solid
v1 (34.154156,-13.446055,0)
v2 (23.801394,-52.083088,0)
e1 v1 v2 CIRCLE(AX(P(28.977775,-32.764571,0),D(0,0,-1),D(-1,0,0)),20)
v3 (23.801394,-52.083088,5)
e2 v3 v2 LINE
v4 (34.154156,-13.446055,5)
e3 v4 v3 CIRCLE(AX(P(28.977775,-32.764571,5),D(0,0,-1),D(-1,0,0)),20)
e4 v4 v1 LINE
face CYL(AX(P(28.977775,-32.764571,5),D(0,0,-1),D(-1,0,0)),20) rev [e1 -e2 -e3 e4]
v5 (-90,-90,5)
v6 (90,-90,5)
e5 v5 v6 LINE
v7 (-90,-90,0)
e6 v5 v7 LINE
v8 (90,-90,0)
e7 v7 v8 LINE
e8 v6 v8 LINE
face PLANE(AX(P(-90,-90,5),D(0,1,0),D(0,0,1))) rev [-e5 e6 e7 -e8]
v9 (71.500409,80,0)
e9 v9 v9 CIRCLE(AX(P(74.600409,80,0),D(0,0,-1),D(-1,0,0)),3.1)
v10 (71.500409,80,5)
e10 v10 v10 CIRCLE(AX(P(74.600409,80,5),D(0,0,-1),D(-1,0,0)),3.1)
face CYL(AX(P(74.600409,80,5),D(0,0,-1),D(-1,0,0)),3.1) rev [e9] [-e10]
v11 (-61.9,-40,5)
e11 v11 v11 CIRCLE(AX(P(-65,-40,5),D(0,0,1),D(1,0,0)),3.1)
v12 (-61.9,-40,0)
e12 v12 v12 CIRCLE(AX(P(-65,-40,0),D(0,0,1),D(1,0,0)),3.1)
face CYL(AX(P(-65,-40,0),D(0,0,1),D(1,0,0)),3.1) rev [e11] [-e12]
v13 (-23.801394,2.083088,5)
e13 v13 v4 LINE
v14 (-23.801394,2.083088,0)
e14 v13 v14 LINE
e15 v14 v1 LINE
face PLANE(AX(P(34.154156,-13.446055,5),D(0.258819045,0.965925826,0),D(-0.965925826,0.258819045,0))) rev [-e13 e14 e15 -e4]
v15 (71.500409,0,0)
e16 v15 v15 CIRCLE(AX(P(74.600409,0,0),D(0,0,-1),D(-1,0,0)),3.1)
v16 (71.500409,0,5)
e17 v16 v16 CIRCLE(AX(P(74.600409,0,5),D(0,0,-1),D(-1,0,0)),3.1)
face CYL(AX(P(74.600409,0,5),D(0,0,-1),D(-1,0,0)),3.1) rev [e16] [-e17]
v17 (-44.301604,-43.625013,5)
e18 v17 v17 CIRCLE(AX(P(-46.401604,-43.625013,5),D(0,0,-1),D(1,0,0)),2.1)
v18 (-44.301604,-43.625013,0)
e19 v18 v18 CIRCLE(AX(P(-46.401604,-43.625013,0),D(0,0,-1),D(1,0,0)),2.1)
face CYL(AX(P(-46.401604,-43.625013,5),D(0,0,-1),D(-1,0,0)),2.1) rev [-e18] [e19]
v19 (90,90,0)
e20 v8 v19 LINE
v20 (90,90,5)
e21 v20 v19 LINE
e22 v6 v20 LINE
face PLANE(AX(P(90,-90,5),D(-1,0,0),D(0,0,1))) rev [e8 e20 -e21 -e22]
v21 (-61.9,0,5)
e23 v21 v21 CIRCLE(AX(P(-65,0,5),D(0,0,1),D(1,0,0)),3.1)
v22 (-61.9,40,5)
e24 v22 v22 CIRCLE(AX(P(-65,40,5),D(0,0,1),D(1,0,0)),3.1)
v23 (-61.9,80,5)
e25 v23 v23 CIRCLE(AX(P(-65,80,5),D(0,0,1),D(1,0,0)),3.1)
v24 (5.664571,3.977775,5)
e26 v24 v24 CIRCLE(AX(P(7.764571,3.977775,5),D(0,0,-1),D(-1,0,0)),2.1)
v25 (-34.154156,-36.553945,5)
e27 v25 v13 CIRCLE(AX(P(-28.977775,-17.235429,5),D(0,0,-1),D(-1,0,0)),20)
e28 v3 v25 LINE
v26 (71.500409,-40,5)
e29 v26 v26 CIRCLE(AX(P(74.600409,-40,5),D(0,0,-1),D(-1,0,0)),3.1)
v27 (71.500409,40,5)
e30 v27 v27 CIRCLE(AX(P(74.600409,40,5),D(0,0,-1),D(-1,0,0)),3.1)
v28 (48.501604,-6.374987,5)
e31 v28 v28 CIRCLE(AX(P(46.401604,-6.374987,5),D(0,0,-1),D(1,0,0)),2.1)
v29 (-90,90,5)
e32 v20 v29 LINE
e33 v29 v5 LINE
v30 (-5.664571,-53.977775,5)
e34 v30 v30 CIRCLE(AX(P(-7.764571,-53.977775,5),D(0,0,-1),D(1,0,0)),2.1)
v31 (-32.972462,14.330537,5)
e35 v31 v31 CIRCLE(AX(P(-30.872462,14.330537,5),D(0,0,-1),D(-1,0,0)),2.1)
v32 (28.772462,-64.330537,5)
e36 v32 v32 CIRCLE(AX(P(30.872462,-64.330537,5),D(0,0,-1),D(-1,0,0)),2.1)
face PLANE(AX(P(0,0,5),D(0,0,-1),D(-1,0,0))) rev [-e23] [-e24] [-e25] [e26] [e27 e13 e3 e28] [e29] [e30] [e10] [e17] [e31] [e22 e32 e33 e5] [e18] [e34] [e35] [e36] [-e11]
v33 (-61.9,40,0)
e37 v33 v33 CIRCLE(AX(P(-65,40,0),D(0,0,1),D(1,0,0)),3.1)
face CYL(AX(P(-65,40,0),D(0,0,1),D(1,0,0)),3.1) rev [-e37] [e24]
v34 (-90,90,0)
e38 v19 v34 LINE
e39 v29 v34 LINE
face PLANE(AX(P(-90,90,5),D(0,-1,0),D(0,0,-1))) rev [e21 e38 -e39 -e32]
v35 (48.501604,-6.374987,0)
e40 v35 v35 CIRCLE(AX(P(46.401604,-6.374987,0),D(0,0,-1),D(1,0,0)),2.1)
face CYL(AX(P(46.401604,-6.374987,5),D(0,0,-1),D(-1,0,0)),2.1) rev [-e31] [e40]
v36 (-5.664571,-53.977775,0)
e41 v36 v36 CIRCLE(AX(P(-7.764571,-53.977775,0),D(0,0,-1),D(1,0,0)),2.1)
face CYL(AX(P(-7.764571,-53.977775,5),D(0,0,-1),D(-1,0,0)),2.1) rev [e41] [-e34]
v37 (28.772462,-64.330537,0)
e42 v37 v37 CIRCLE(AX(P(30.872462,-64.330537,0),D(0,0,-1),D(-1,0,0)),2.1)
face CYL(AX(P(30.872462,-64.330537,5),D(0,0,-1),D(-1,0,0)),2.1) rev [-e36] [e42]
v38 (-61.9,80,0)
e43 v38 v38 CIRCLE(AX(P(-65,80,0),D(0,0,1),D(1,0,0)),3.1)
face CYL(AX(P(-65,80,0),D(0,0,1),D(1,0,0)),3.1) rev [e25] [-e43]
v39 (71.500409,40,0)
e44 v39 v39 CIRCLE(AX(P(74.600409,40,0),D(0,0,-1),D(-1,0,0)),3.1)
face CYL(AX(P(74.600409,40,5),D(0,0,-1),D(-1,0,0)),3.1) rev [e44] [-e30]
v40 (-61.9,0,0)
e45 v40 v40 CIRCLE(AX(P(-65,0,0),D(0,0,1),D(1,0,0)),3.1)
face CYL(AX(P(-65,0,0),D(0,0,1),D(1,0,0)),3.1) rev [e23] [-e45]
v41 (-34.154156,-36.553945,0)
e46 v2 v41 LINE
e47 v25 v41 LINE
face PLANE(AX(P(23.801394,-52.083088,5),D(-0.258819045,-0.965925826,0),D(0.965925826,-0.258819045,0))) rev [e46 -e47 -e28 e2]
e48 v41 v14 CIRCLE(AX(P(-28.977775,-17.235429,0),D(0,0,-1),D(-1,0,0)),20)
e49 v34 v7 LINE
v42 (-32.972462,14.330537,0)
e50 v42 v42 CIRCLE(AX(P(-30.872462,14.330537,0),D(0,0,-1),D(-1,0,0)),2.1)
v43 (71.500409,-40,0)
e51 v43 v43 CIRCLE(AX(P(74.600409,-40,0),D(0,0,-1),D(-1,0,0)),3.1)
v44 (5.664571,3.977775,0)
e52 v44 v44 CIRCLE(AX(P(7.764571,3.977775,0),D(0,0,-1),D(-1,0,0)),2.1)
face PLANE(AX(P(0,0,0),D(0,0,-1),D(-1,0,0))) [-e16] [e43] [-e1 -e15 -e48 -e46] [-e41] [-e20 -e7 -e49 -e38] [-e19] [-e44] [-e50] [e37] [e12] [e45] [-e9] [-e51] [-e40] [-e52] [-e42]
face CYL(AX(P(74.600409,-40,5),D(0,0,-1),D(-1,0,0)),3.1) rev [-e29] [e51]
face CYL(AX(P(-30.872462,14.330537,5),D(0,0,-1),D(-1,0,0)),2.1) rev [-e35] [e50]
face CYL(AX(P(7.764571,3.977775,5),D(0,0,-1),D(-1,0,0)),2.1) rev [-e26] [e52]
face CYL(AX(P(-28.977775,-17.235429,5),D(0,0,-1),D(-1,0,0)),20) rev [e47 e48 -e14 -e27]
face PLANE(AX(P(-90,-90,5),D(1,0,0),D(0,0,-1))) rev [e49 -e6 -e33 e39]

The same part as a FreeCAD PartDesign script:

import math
import FreeCAD as App
import Part
import Sketcher

V = App.Vector
Q = App.Units.Quantity

doc = App.newDocument("Part")
body = doc.addObject("PartDesign::Body", "Body")

sketch1 = body.newObject("Sketcher::SketchObject", "Sketch")
sketch1.AttachmentSupport = (doc.getObject("XY_Plane"), [""])
sketch1.MapMode = "FlatFace"
sketch1.addGeometry(Part.LineSegment(V(-90, 90, 0), V(-90, -90, 0)), False)
sketch1.addGeometry(Part.LineSegment(V(-90, -90, 0), V(90, -90, 0)), False)
sketch1.addGeometry(Part.LineSegment(V(90, -90, 0), V(90, 90, 0)), False)
sketch1.addGeometry(Part.LineSegment(V(90, 90, 0), V(-90, 90, 0)), False)
sketch1.addConstraint(Sketcher.Constraint("Coincident", 0, 2, 1, 1))
sketch1.addConstraint(Sketcher.Constraint("Coincident", 1, 2, 2, 1))
sketch1.addConstraint(Sketcher.Constraint("Coincident", 2, 2, 3, 1))
sketch1.addConstraint(Sketcher.Constraint("Coincident", 3, 2, 0, 1))
sketch1.addConstraint(Sketcher.Constraint("Vertical", 0))
sketch1.addConstraint(Sketcher.Constraint("Horizontal", 1))
sketch1.addConstraint(Sketcher.Constraint("Vertical", 2))
sketch1.addConstraint(Sketcher.Constraint("Horizontal", 3))
sketch1.addConstraint(Sketcher.Constraint("Symmetric", 0, 2, 2, 2, -1, 1))
sketch1.addConstraint(Sketcher.Constraint("Equal", 3, 0))
sketch1.addConstraint(Sketcher.Constraint("DistanceX", 1, 1, 1, 2, 180.0))
pad1 = body.newObject("PartDesign::Pad", "Pad")
pad1.Profile = sketch1
pad1.Length = 5

sketch2 = body.newObject("Sketcher::SketchObject", "Sketch001")
sketch2.AttachmentSupport = (doc.getObject("XY_Plane"), [""])
sketch2.MapMode = "FlatFace"
sketch2.addGeometry(Part.LineSegment(V(-23.801394, 2.083088, 0), V(34.154156, -13.446055, 0)), False)
sketch2.addGeometry(Part.ArcOfCircle(Part.Circle(V(28.977775, -32.764571, 0), V(0, 0, 1), 20), math.radians(-105), math.radians(75)), False)
sketch2.addGeometry(Part.LineSegment(V(23.801394, -52.083088, 0), V(-34.154156, -36.553945, 0)), False)
sketch2.addGeometry(Part.ArcOfCircle(Part.Circle(V(-28.977775, -17.235429, 0), V(0, 0, 1), 20), math.radians(75), math.radians(255)), False)
sketch2.addConstraint(Sketcher.Constraint("Tangent", 0, 2, 1, 2))
sketch2.addConstraint(Sketcher.Constraint("Tangent", 1, 1, 2, 1))
sketch2.addConstraint(Sketcher.Constraint("Tangent", 2, 2, 3, 2))
sketch2.addConstraint(Sketcher.Constraint("Tangent", 3, 1, 0, 1))
sketch2.addConstraint(Sketcher.Constraint("Equal", 1, 3))
sketch2.addConstraint(Sketcher.Constraint("Radius", 1, 20.0))
sketch2.addConstraint(Sketcher.Constraint("Angle", 0, Q("-15 deg")))
sketch2.addConstraint(Sketcher.Constraint("Distance", 0, 60.0))
sketch2.addConstraint(Sketcher.Constraint("DistanceY", 1, 3, -1, 1, 32.764571))
sketch2.addConstraint(Sketcher.Constraint("DistanceX", -1, 1, 1, 3, 28.977775))
pocket1 = body.newObject("PartDesign::Pocket", "Pocket")
pocket1.Profile = sketch2
pocket1.Type = "ThroughAll"
pocket1.Reversed = True

sketch3 = body.newObject("Sketcher::SketchObject", "Sketch002")
sketch3.AttachmentSupport = (doc.getObject("XY_Plane"), [""])
sketch3.MapMode = "FlatFace"
sketch3.AttachmentOffset = App.Placement(V(0, 0, 5), App.Rotation())
sketch3.addGeometry(Part.Circle(V(-65, 80, 0), V(0, 0, 1), 3.1), False)
sketch3.addGeometry(Part.Circle(V(-65, 40, 0), V(0, 0, 1), 3.1), False)
sketch3.addGeometry(Part.Circle(V(-65, 0, 0), V(0, 0, 1), 3.1), False)
sketch3.addGeometry(Part.Circle(V(-65, -40, 0), V(0, 0, 1), 3.1), False)
sketch3.addConstraint(Sketcher.Constraint("Equal", 0, 1))
sketch3.addConstraint(Sketcher.Constraint("Equal", 1, 2))
sketch3.addConstraint(Sketcher.Constraint("Equal", 2, 3))
sketch3.addConstraint(Sketcher.Constraint("Symmetric", 1, 3, 3, 3, -1))
sketch3.addConstraint(Sketcher.Constraint("PointOnObject", 2, 3, -1))
sketch3.addConstraint(Sketcher.Constraint("Vertical", 0, 3, 1, 3))
sketch3.addConstraint(Sketcher.Constraint("Vertical", 1, 3, 2, 3))
sketch3.addConstraint(Sketcher.Constraint("Diameter", 0, 6.2))
sketch3.addConstraint(Sketcher.Constraint("DistanceX", 0, 3, -1, 1, 65.0))
sketch3.addConstraint(Sketcher.Constraint("DistanceY", -1, 1, 0, 3, 80.0))
sketch3.addConstraint(Sketcher.Constraint("DistanceY", -1, 1, 1, 3, 40.0))
pocket2 = body.newObject("PartDesign::Pocket", "Pocket001")
pocket2.Profile = sketch3
pocket2.Type = "ThroughAll"

sketch4 = body.newObject("Sketcher::SketchObject", "Sketch003")
sketch4.AttachmentSupport = (doc.getObject("XY_Plane"), [""])
sketch4.MapMode = "FlatFace"
sketch4.addGeometry(Part.Circle(V(74.600409, 80, 0), V(0, 0, 1), 3.1), False)
sketch4.addGeometry(Part.Circle(V(74.600409, 40, 0), V(0, 0, 1), 3.1), False)
sketch4.addGeometry(Part.Circle(V(74.600409, 0, 0), V(0, 0, 1), 3.1), False)
sketch4.addGeometry(Part.Circle(V(74.600409, -40, 0), V(0, 0, 1), 3.1), False)
sketch4.addConstraint(Sketcher.Constraint("Equal", 0, 1))
sketch4.addConstraint(Sketcher.Constraint("Equal", 1, 2))
sketch4.addConstraint(Sketcher.Constraint("Equal", 2, 3))
sketch4.addConstraint(Sketcher.Constraint("Symmetric", 1, 3, 3, 3, -1))
sketch4.addConstraint(Sketcher.Constraint("PointOnObject", 2, 3, -1))
sketch4.addConstraint(Sketcher.Constraint("Vertical", 0, 3, 1, 3))
sketch4.addConstraint(Sketcher.Constraint("Vertical", 1, 3, 2, 3))
sketch4.addConstraint(Sketcher.Constraint("Diameter", 0, 6.2))
sketch4.addConstraint(Sketcher.Constraint("DistanceY", -1, 1, 0, 3, 80.0))
sketch4.addConstraint(Sketcher.Constraint("DistanceY", -1, 1, 1, 3, 40.0))
sketch4.addConstraint(Sketcher.Constraint("DistanceX", -1, 1, 0, 3, 74.600409))
pocket3 = body.newObject("PartDesign::Pocket", "Pocket002")
pocket3.Profile = sketch4
pocket3.Type = "ThroughAll"
pocket3.Reversed = True

sketch5 = body.newObject("Sketcher::SketchObject", "Sketch004")
sketch5.AttachmentSupport = (doc.getObject("XY_Plane"), [""])
sketch5.MapMode = "FlatFace"
sketch5.addGeometry(Part.Circle(V(7.764571, 3.977775, 0), V(0, 0, 1), 2.1), False)
sketch5.addGeometry(Part.Circle(V(-7.764571, -53.977775, 0), V(0, 0, 1), 2.1), False)
sketch5.addGeometry(Part.Circle(V(-46.401604, -43.625013, 0), V(0, 0, 1), 2.1), False)
sketch5.addGeometry(Part.Circle(V(-30.872462, 14.330537, 0), V(0, 0, 1), 2.1), False)
sketch5.addGeometry(Part.Circle(V(30.872462, -64.330537, 0), V(0, 0, 1), 2.1), False)
sketch5.addGeometry(Part.Circle(V(46.401604, -6.374987, 0), V(0, 0, 1), 2.1), False)
sketch5.addConstraint(Sketcher.Constraint("Equal", 0, 1))
sketch5.addConstraint(Sketcher.Constraint("Equal", 1, 2))
sketch5.addConstraint(Sketcher.Constraint("Equal", 2, 3))
sketch5.addConstraint(Sketcher.Constraint("Equal", 3, 4))
sketch5.addConstraint(Sketcher.Constraint("Equal", 4, 5))
sketch5.addConstraint(Sketcher.Constraint("Diameter", 0, 4.2))
sketch5.addConstraint(Sketcher.Constraint("DistanceX", -1, 1, 0, 3, 7.764571))
sketch5.addConstraint(Sketcher.Constraint("DistanceX", 1, 3, -1, 1, 7.764571))
sketch5.addConstraint(Sketcher.Constraint("DistanceX", 3, 3, -1, 1, 30.872462))
sketch5.addConstraint(Sketcher.Constraint("DistanceX", -1, 1, 4, 3, 30.872462))
sketch5.addConstraint(Sketcher.Constraint("DistanceY", 1, 3, 0, 3, 57.95555))
sketch5.addConstraint(Sketcher.Constraint("DistanceY", 1, 3, 2, 3, 10.352762))
sketch5.addConstraint(Sketcher.Constraint("DistanceY", 0, 3, 3, 3, 10.352762))
sketch5.addConstraint(Sketcher.Constraint("DistanceY", 4, 3, 1, 3, 10.352762))
sketch5.addConstraint(Sketcher.Constraint("DistanceY", 5, 3, 0, 3, 10.352762))
sketch5.addConstraint(Sketcher.Constraint("DistanceX", 2, 3, 5, 3, 92.803209))
sketch5.addConstraint(Sketcher.Constraint("DistanceY", -1, 1, 0, 3, 3.977775))
sketch5.addConstraint(Sketcher.Constraint("DistanceX", 2, 3, -1, 1, 46.401604))
pocket4 = body.newObject("PartDesign::Pocket", "Pocket003")
pocket4.Profile = sketch5
pocket4.Type = "ThroughAll"
pocket4.Reversed = True

doc.recompute()
